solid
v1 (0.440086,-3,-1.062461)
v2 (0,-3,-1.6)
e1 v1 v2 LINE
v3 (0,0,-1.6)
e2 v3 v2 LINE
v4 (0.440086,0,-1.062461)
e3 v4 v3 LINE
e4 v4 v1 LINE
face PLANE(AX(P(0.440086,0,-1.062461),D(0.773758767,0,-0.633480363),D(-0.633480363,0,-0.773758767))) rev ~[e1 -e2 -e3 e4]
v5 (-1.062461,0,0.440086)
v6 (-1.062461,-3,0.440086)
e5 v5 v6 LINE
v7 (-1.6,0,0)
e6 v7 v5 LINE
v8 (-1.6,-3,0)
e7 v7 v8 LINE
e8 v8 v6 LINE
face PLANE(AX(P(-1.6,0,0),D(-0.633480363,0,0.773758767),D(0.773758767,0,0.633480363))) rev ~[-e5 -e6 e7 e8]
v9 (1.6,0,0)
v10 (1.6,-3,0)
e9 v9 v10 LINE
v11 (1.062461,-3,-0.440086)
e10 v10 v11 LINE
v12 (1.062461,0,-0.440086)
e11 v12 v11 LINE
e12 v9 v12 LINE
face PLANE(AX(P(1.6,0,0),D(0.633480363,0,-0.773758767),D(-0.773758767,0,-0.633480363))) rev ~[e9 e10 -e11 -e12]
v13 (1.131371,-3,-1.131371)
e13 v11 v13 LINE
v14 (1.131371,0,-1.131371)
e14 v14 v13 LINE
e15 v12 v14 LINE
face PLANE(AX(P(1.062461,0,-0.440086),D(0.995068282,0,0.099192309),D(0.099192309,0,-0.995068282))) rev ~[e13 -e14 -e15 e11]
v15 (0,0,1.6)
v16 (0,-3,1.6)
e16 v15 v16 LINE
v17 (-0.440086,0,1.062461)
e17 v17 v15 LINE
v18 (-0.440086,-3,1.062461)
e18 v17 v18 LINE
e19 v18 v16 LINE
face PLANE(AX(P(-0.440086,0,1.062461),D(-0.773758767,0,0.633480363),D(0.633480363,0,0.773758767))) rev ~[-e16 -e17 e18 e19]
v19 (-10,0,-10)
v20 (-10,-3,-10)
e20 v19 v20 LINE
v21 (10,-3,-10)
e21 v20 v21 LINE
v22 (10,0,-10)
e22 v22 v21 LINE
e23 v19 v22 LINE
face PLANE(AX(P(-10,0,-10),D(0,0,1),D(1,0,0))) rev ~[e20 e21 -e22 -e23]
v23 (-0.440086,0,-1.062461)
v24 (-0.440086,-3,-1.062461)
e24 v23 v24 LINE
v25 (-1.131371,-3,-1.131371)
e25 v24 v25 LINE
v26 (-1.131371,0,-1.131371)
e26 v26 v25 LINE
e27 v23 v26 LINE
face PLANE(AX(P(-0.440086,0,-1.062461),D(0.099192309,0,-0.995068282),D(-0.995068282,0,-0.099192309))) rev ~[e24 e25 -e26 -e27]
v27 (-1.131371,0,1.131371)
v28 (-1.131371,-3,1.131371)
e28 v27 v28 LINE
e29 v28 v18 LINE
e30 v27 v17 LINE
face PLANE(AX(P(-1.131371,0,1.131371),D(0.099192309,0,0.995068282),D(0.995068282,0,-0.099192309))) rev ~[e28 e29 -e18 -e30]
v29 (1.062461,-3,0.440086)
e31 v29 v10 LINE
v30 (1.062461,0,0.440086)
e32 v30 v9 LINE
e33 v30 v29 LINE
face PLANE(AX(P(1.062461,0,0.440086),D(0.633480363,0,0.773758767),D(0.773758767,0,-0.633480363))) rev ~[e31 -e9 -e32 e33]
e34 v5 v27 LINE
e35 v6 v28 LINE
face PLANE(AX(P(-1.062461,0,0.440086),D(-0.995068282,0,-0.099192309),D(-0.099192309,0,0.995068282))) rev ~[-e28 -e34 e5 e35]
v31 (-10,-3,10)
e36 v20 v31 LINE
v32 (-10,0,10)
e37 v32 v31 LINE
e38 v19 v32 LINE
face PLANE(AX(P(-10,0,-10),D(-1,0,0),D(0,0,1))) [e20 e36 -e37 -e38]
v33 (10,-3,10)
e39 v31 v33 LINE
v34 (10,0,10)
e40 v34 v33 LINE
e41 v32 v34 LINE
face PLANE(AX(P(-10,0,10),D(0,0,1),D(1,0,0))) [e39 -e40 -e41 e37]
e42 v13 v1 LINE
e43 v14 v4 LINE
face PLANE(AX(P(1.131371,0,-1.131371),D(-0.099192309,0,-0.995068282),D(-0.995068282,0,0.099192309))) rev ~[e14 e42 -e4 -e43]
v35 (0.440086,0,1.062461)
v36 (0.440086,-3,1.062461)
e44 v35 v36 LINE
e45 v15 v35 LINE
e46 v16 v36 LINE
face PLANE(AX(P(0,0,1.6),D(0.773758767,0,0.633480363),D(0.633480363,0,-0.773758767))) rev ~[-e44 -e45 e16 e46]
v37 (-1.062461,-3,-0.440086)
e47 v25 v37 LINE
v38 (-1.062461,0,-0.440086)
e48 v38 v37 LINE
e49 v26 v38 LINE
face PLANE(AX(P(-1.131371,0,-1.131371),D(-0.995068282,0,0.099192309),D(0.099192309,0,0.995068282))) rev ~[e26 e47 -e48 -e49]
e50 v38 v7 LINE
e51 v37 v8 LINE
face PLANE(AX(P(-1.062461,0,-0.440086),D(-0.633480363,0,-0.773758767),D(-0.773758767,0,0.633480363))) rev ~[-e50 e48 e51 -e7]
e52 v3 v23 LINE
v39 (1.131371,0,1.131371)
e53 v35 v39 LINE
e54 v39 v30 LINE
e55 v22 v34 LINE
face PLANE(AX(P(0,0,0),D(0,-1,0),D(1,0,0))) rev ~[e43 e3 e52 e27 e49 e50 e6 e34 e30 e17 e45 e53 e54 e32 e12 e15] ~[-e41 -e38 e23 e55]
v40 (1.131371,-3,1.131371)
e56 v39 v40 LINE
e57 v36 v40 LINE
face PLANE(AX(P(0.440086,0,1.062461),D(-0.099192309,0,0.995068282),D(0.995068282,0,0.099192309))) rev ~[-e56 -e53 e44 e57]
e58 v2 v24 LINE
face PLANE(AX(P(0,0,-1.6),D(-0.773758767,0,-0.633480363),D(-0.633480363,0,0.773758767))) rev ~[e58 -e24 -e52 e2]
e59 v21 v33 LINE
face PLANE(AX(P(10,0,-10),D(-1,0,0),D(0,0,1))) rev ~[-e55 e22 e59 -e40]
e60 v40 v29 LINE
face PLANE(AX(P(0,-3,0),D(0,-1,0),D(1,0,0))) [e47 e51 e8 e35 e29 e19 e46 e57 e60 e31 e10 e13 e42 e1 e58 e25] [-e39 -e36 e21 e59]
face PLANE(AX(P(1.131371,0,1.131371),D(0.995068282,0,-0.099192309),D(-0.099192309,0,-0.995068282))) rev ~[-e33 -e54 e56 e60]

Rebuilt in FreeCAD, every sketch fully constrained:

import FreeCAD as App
import Part
import Sketcher

V = App.Vector
Q = App.Units.Quantity

doc = App.newDocument("Part")
body = doc.addObject("PartDesign::Body", "Body")

sketch1 = body.newObject("Sketcher::SketchObject", "Sketch")
sketch1.AttachmentSupport = (doc.getObject("XZ_Plane"), [""])
sketch1.MapMode = "FlatFace"
sketch1.addGeometry([
    Part.LineSegment(V(-10, 10, 0), V(-10, -10, 0)),
    Part.LineSegment(V(-10, -10, 0), V(10, -10, 0)),
    Part.LineSegment(V(10, -10, 0), V(10, 10, 0)),
    Part.LineSegment(V(10, 10, 0), V(-10, 10, 0)),
    Part.LineSegment(V(-1.6, 0, 0), V(-1.062461, 0.440086, 0)),
    Part.LineSegment(V(-1.062461, 0.440086, 0), V(-1.131371, 1.131371, 0)),
    Part.LineSegment(V(-1.131371, 1.131371, 0), V(-0.440086, 1.062461, 0)),
    Part.LineSegment(V(-0.440086, 1.062461, 0), V(0, 1.6, 0)),
    Part.LineSegment(V(0, 1.6, 0), V(0.440086, 1.062461, 0)),
    Part.LineSegment(V(0.440086, 1.062461, 0), V(1.131371, 1.131371, 0)),
    Part.LineSegment(V(1.131371, 1.131371, 0), V(1.062461, 0.440086, 0)),
    Part.LineSegment(V(1.062461, 0.440086, 0), V(1.6, 0, 0)),
    Part.LineSegment(V(1.6, 0, 0), V(1.062461, -0.440086, 0)),
    Part.LineSegment(V(1.062461, -0.440086, 0), V(1.131371, -1.131371, 0)),
    Part.LineSegment(V(1.131371, -1.131371, 0), V(0.440086, -1.062461, 0)),
    Part.LineSegment(V(0.440086, -1.062461, 0), V(0, -1.6, 0)),
    Part.LineSegment(V(0, -1.6, 0), V(-0.440086, -1.062461, 0)),
    Part.LineSegment(V(-0.440086, -1.062461, 0), V(-1.131371, -1.131371, 0)),
    Part.LineSegment(V(-1.131371, -1.131371, 0), V(-1.062461, -0.440086, 0)),
    Part.LineSegment(V(-1.062461, -0.440086, 0), V(-1.6, 0, 0)),
], False)
sketch1.addConstraint([
    Sketcher.Constraint("Coincident", 0, 2, 1, 1),
    Sketcher.Constraint("Coincident", 1, 2, 2, 1),
    Sketcher.Constraint("Coincident", 2, 2, 3, 1),
    Sketcher.Constraint("Coincident", 3, 2, 0, 1),
    Sketcher.Constraint("Coincident", 4, 2, 5, 1),
    Sketcher.Constraint("Coincident", 5, 2, 6, 1),
    Sketcher.Constraint("Coincident", 6, 2, 7, 1),
    Sketcher.Constraint("Coincident", 7, 2, 8, 1),
    Sketcher.Constraint("Coincident", 8, 2, 9, 1),
    Sketcher.Constraint("Coincident", 9, 2, 10, 1),
    Sketcher.Constraint("Coincident", 10, 2, 11, 1),
    Sketcher.Constraint("Coincident", 11, 2, 12, 1),
    Sketcher.Constraint("Coincident", 12, 2, 13, 1),
    Sketcher.Constraint("Coincident", 13, 2, 14, 1),
    Sketcher.Constraint("Coincident", 14, 2, 15, 1),
    Sketcher.Constraint("Coincident", 15, 2, 16, 1),
    Sketcher.Constraint("Coincident", 16, 2, 17, 1),
    Sketcher.Constraint("Coincident", 17, 2, 18, 1),
    Sketcher.Constraint("Coincident", 18, 2, 19, 1),
    Sketcher.Constraint("Coincident", 19, 2, 4, 1),
    Sketcher.Constraint("Vertical", 0),
    Sketcher.Constraint("Horizontal", 1),
    Sketcher.Constraint("Vertical", 2),
    Sketcher.Constraint("Horizontal", 3),
    Sketcher.Constraint("Symmetric", 0, 2, 2, 2, -1, 1),
    Sketcher.Constraint("Symmetric", 4, 2, 12, 2, -1, 1),
    Sketcher.Constraint("Symmetric", 5, 2, 13, 2, -1, 1),
    Sketcher.Constraint("Symmetric", 6, 2, 14, 2, -1, 1),
    Sketcher.Constraint("Symmetric", 7, 2, 15, 2, -1, 1),
    Sketcher.Constraint("Symmetric", 8, 2, 16, 2, -1, 1),
    Sketcher.Constraint("Symmetric", 9, 2, 17, 2, -1, 1),
    Sketcher.Constraint("Symmetric", 10, 2, 18, 2, -1, 1),
    Sketcher.Constraint("Symmetric", 11, 2, 19, 2, -1, 1),
    Sketcher.Constraint("Symmetric", 6, 2, 8, 2, -2),
    Sketcher.Constraint("Symmetric", 5, 2, 9, 2, -2),
    Sketcher.Constraint("Symmetric", 4, 2, 10, 2, -2),
    Sketcher.Constraint("PointOnObject", 7, 2, -2),
    Sketcher.Constraint("PointOnObject", 11, 2, -1),
    Sketcher.Constraint("Perpendicular", 4, 8),
    Sketcher.Constraint("Perpendicular", 5, 9),
    Sketcher.Constraint("Equal", 3, 0),
    Sketcher.Constraint("Equal", 4, 5),
    Sketcher.Constraint("Equal", 5, 6),
    Sketcher.Constraint("Equal", 6, 7),
    Sketcher.Constraint("DistanceX", 1, 1, 1, 2, Q("20 mm")),
    Sketcher.Constraint("DistanceY", -1, 1, 7, 2, Q("1.6 mm")),
    Sketcher.Constraint("Distance", 4, Q("0.694711 mm")),
    Sketcher.Constraint("DistanceX", 4, 2, -1, 1, Q("1.062461 mm")),
])
pad1 = body.newObject("PartDesign::Pad", "Pad")
pad1.Profile = sketch1
pad1.Length = 3

doc.recompute()
